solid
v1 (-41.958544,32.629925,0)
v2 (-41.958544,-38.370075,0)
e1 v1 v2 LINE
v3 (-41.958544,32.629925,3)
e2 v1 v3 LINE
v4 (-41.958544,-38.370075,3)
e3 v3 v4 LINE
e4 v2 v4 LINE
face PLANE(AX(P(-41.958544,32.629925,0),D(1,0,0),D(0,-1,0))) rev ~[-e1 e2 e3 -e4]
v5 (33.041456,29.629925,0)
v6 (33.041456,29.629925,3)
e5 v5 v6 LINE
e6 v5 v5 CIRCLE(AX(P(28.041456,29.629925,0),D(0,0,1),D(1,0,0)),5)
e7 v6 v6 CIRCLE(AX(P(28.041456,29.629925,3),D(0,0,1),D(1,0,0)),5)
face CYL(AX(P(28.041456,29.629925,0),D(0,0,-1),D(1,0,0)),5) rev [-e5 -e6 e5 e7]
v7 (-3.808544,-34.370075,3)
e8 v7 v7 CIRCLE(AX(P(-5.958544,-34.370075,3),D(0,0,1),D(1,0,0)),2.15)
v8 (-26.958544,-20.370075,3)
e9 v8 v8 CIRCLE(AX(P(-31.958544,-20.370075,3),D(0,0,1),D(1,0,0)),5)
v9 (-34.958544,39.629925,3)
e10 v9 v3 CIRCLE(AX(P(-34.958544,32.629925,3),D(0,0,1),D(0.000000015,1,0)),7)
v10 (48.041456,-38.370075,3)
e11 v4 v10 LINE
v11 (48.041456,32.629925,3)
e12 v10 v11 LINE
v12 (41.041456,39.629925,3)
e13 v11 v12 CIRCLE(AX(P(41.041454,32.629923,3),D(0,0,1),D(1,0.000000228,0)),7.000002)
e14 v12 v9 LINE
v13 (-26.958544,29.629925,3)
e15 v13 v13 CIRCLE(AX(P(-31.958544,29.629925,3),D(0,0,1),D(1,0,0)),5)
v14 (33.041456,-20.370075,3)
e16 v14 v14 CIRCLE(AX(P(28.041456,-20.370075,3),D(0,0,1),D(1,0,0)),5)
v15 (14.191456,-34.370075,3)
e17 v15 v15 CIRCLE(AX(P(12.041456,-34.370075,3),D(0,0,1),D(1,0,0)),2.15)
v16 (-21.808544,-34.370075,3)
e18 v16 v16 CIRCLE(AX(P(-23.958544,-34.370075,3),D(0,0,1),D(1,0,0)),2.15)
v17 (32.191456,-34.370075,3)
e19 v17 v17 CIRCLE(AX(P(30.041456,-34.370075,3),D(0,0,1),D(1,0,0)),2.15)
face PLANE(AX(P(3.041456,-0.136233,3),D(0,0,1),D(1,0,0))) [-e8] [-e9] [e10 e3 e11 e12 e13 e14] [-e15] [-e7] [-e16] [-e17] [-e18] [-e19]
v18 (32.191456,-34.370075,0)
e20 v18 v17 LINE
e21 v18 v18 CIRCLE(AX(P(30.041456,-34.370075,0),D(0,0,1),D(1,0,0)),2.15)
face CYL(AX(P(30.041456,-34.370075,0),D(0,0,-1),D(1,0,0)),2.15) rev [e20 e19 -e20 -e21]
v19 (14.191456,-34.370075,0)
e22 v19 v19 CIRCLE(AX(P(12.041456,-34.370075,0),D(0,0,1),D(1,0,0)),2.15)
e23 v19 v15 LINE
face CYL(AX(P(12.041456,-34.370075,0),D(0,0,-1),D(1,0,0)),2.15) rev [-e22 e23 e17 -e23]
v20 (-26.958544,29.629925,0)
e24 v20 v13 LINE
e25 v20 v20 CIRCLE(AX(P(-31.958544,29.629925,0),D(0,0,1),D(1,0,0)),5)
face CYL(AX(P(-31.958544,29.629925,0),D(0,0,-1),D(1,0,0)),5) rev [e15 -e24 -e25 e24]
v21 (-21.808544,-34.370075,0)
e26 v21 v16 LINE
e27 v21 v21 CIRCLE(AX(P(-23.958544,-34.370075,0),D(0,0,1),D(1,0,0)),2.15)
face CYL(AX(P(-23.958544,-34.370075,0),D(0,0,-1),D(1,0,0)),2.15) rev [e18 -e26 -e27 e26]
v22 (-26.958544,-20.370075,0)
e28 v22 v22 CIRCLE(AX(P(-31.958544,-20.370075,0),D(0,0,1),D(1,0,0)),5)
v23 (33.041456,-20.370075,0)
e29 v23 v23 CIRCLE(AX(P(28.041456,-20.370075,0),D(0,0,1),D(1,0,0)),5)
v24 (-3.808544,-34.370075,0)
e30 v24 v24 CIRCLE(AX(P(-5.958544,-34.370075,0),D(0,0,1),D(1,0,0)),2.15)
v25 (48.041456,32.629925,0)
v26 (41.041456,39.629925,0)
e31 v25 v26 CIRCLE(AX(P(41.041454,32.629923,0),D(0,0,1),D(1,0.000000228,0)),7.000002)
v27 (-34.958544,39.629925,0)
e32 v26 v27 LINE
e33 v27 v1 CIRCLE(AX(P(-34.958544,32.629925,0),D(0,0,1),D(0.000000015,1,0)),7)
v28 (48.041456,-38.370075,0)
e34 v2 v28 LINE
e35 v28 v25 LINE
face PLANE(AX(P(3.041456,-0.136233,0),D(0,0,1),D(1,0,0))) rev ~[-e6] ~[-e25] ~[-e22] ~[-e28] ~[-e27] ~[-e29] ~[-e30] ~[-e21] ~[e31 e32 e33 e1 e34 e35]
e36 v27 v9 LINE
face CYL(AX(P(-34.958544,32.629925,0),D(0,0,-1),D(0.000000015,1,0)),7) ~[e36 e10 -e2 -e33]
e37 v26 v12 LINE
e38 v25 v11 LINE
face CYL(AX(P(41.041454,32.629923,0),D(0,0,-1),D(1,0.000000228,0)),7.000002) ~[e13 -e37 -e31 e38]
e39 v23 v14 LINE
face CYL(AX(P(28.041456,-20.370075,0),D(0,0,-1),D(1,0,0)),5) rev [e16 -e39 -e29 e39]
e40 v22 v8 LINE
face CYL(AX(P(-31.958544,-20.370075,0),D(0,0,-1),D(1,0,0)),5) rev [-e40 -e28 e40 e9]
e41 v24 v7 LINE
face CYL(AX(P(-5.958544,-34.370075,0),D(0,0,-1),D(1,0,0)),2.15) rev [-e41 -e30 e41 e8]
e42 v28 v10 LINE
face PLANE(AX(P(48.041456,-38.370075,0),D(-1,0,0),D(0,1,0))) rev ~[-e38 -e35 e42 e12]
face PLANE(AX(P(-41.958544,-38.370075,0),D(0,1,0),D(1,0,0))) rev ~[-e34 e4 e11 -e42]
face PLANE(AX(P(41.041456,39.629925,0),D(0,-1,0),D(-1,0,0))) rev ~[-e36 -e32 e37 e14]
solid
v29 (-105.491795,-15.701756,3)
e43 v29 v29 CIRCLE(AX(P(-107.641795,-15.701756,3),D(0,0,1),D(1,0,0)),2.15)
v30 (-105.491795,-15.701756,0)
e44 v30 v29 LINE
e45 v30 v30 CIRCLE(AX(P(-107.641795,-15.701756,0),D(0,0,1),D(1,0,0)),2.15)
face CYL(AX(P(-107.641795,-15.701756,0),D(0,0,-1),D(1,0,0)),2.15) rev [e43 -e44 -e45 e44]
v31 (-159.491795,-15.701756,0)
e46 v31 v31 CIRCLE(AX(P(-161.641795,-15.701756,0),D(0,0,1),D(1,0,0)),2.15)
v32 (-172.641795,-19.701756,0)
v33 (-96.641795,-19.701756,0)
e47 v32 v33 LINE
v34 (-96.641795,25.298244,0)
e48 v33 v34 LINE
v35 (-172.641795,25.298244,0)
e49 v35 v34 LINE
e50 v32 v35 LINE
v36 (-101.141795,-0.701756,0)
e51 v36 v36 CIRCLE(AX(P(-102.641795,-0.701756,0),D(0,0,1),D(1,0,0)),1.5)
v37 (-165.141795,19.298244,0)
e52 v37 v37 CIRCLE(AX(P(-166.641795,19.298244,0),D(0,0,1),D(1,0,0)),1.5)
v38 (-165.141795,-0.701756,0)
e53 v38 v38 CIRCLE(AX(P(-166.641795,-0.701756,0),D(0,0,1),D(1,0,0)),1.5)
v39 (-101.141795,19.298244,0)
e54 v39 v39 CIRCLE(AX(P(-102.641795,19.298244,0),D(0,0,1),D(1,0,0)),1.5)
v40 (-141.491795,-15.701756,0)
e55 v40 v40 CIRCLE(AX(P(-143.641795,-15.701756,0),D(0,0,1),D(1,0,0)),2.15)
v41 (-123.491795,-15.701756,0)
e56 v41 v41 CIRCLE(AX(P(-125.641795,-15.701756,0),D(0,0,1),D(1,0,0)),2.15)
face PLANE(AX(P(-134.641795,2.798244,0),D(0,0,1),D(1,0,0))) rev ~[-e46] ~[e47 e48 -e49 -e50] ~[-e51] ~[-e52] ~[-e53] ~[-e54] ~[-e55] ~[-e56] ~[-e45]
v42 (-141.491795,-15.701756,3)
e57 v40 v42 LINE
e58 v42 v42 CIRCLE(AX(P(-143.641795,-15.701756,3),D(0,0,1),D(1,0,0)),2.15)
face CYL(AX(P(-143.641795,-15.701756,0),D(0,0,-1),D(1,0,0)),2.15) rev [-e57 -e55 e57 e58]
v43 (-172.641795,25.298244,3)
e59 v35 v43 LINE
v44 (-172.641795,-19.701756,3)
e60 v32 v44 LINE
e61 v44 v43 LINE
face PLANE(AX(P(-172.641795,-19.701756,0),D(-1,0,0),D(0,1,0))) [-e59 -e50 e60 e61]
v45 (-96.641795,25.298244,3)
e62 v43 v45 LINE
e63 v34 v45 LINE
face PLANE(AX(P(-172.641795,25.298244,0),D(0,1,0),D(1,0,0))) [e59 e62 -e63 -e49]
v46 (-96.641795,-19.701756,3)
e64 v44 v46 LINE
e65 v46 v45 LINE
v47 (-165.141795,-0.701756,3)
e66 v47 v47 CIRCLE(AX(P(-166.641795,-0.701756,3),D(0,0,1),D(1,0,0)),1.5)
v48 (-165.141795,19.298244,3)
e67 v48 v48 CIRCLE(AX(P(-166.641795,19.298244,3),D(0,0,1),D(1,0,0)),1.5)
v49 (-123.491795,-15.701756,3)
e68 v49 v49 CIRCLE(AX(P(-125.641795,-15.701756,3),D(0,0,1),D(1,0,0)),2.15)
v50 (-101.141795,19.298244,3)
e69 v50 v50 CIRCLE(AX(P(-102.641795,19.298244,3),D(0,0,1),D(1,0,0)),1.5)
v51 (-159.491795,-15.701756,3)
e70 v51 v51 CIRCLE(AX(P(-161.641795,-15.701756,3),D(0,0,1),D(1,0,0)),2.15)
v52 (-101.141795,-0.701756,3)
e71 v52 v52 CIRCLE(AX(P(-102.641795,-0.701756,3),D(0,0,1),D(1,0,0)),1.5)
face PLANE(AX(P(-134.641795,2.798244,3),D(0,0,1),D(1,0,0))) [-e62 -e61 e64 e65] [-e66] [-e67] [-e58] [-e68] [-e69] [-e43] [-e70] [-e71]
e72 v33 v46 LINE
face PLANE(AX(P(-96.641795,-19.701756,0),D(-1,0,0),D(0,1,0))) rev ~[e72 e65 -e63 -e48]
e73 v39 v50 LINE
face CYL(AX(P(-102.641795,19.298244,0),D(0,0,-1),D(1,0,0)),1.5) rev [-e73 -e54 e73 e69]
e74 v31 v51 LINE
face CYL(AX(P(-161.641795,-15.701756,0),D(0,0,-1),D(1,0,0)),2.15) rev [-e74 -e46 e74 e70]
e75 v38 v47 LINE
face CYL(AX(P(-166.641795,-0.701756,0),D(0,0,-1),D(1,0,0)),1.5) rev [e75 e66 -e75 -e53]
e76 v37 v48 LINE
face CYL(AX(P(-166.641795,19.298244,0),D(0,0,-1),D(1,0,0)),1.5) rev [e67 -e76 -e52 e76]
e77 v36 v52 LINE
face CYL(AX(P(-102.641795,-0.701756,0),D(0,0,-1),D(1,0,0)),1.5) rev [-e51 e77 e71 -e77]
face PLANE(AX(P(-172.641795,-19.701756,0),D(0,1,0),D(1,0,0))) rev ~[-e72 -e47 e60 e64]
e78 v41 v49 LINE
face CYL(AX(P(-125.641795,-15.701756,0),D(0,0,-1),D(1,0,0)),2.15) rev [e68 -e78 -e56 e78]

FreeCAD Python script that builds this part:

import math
import FreeCAD as App
import Part
import Sketcher
from FreeCAD import Vector
Q = App.Units.Quantity

doc = App.newDocument("Part")
params = doc.addObject("Spreadsheet::Sheet", "Params")
for row, (alias, value) in enumerate([
    ("sketch1_diameter", "10 mm"),
    ("sketch1_radius", "7.000002 mm"),
    ("sketch1_diameter2", "4.3 mm"),
    ("sketch1_width", "76 mm"),
    ("sketch1_height", "71 mm"),
    ("pad1_length", "3 mm"),
    ("sketch2_diameter", "3 mm"),
    ("sketch2_diameter2", "4.3 mm"),
    ("sketch2_width", "76 mm"),
    ("sketch2_height", "45 mm"),
    ("pad2_length", "3 mm"),
], start=1):
    params.set(f"A{row}", alias)
    params.set(f"B{row}", "=" + value)
    params.setAlias(f"B{row}", alias)

body = doc.addObject("PartDesign::Body", "Body")

# Sketch on XY plane
sketch1 = body.newObject("Sketcher::SketchObject", "Sketch")
sketch1.AttachmentSupport = (doc.getObject("XY_Plane"), [""])
sketch1.MapMode = "FlatFace"
sketch1.addGeometry(Part.LineSegment(Vector(48.041456, -38.370075, 0), Vector(48.041456, 32.629925, 0)), False)
sketch1.addGeometry(Part.ArcOfCircle(Part.Circle(Vector(41.041454, 32.629923, 0), Vector(0, 0, 1), 7.000002), math.radians(0.000013), math.radians(89.999987)), False)
sketch1.addGeometry(Part.LineSegment(Vector(41.041456, 39.629925, 0), Vector(-34.958544, 39.629925, 0)), False)
sketch1.addGeometry(Part.ArcOfCircle(Part.Circle(Vector(-34.958544, 32.629925, 0), Vector(0, 0, 1), 7), math.radians(89.999999), math.radians(180.000001)), False)
sketch1.addGeometry(Part.LineSegment(Vector(-41.958544, 32.629925, 0), Vector(-41.958544, -38.370075, 0)), False)
sketch1.addGeometry(Part.LineSegment(Vector(-41.958544, -38.370075, 0), Vector(48.041456, -38.370075, 0)), False)
sketch1.addGeometry(Part.Circle(Vector(-23.958544, -34.370075, 0), Vector(0, 0, 1), 2.15), False)
sketch1.addGeometry(Part.Circle(Vector(-31.958544, -20.370075, 0), Vector(0, 0, 1), 5), False)
sketch1.addGeometry(Part.Circle(Vector(-5.958544, -34.370075, 0), Vector(0, 0, 1), 2.15), False)
sketch1.addGeometry(Part.Circle(Vector(12.041456, -34.370075, 0), Vector(0, 0, 1), 2.15), False)
sketch1.addGeometry(Part.Circle(Vector(30.041456, -34.370075, 0), Vector(0, 0, 1), 2.15), False)
sketch1.addGeometry(Part.Circle(Vector(28.041456, -20.370075, 0), Vector(0, 0, 1), 5), False)
sketch1.addGeometry(Part.Circle(Vector(-31.958544, 29.629925, 0), Vector(0, 0, 1), 5), False)
sketch1.addGeometry(Part.Circle(Vector(28.041456, 29.629925, 0), Vector(0, 0, 1), 5), False)
sketch1.addConstraint(Sketcher.Constraint("Tangent", 0, 2, 1, 1))
sketch1.addConstraint(Sketcher.Constraint("Tangent", 1, 2, 2, 1))
sketch1.addConstraint(Sketcher.Constraint("Tangent", 2, 2, 3, 1))
sketch1.addConstraint(Sketcher.Constraint("Tangent", 3, 2, 4, 1))
sketch1.addConstraint(Sketcher.Constraint("Coincident", 4, 2, 5, 1))
sketch1.addConstraint(Sketcher.Constraint("Coincident", 5, 2, 0, 1))
sketch1.addConstraint(Sketcher.Constraint("Vertical", 0))
sketch1.addConstraint(Sketcher.Constraint("Horizontal", 2))
sketch1.addConstraint(Sketcher.Constraint("Vertical", 4))
sketch1.addConstraint(Sketcher.Constraint("Horizontal", 5))
sketch1.addConstraint(Sketcher.Constraint("Equal", 1, 3))
sketch1.addConstraint(Sketcher.Constraint("Equal", 6, 8))
sketch1.addConstraint(Sketcher.Constraint("Equal", 8, 9))
sketch1.addConstraint(Sketcher.Constraint("Equal", 9, 10))
sketch1.addConstraint(Sketcher.Constraint("Equal", 7, 11))
sketch1.addConstraint(Sketcher.Constraint("Equal", 11, 12))
sketch1.addConstraint(Sketcher.Constraint("Equal", 12, 13))
sketch1.addConstraint(Sketcher.Constraint("Horizontal", 6, 3, 8, 3))
sketch1.addConstraint(Sketcher.Constraint("Horizontal", 8, 3, 9, 3))
sketch1.addConstraint(Sketcher.Constraint("Horizontal", 9, 3, 10, 3))
sketch1.addConstraint(Sketcher.Constraint("Horizontal", 7, 3, 11, 3))
sketch1.addConstraint(Sketcher.Constraint("Horizontal", 12, 3, 13, 3))
sketch1.addConstraint(Sketcher.Constraint("Vertical", 7, 3, 12, 3))
sketch1.addConstraint(Sketcher.Constraint("Vertical", 11, 3, 13, 3))
sketch1.addConstraint(Sketcher.Constraint("Diameter", 7, Q("10 mm")))
sketch1.addConstraint(Sketcher.Constraint("Radius", 1, Q("7.000002 mm")))
sketch1.addConstraint(Sketcher.Constraint("Diameter", 6, Q("4.3 mm")))
sketch1.addConstraint(Sketcher.Constraint("DistanceX", 2, 2, 2, 1, Q("76 mm")))
sketch1.addConstraint(Sketcher.Constraint("DistanceY", 0, 1, 0, 2, Q("71 mm")))
sketch1.addConstraint(Sketcher.Constraint("DistanceX", 3, 3, 6, 3, Q("11 mm")))
sketch1.addConstraint(Sketcher.Constraint("DistanceY", 6, 3, 3, 3, Q("67 mm")))
sketch1.addConstraint(Sketcher.Constraint("DistanceX", 7, 3, 6, 3, Q("8 mm")))
sketch1.addConstraint(Sketcher.Constraint("DistanceY", 6, 3, 7, 3, Q("14 mm")))
sketch1.addConstraint(Sketcher.Constraint("DistanceX", 6, 3, 8, 3, Q("18 mm")))
sketch1.addConstraint(Sketcher.Constraint("DistanceX", 8, 3, 9, 3, Q("18 mm")))
sketch1.addConstraint(Sketcher.Constraint("DistanceX", 9, 3, 10, 3, Q("18 mm")))
sketch1.addConstraint(Sketcher.Constraint("DistanceX", 11, 3, 10, 3, Q("2 mm")))
sketch1.addConstraint(Sketcher.Constraint("DistanceY", 12, 3, 3, 3, Q("3 mm")))
sketch1.addConstraint(Sketcher.Constraint("DistanceX", -1, 1, 1, 3, Q("41.041454 mm")))
sketch1.addConstraint(Sketcher.Constraint("DistanceY", -1, 1, 1, 3, Q("32.629923 mm")))
sketch1.setExpression("Constraints[24]", "Params.sketch1_diameter")
sketch1.setExpression("Constraints[25]", "Params.sketch1_radius")
sketch1.setExpression("Constraints[26]", "Params.sketch1_diameter2")
sketch1.setExpression("Constraints[27]", "Params.sketch1_width")
sketch1.setExpression("Constraints[28]", "Params.sketch1_height")
pad1 = body.newObject("PartDesign::Pad", "Pad")
pad1.Profile = sketch1
pad1.setExpression("Length", "Params.pad1_length")
body2 = doc.addObject("PartDesign::Body", "Body001")

# Sketch on XY plane
sketch2 = body2.newObject("Sketcher::SketchObject", "Sketch001")
sketch2.AttachmentSupport = (doc.getObject("XY_Plane001"), [""])
sketch2.MapMode = "FlatFace"
sketch2.addGeometry(Part.LineSegment(Vector(-172.641795, 25.298244, 0), Vector(-172.641795, -19.701756, 0)), False)
sketch2.addGeometry(Part.LineSegment(Vector(-172.641795, -19.701756, 0), Vector(-96.641795, -19.701756, 0)), False)
sketch2.addGeometry(Part.LineSegment(Vector(-96.641795, -19.701756, 0), Vector(-96.641795, 25.298244, 0)), False)
sketch2.addGeometry(Part.LineSegment(Vector(-96.641795, 25.298244, 0), Vector(-172.641795, 25.298244, 0)), False)
sketch2.addGeometry(Part.Circle(Vector(-161.641795, -15.701756, 0), Vector(0, 0, 1), 2.15), False)
sketch2.addGeometry(Part.Circle(Vector(-143.641795, -15.701756, 0), Vector(0, 0, 1), 2.15), False)
sketch2.addGeometry(Part.Circle(Vector(-166.641795, -0.701756, 0), Vector(0, 0, 1), 1.5), False)
sketch2.addGeometry(Part.Circle(Vector(-125.641795, -15.701756, 0), Vector(0, 0, 1), 2.15), False)
sketch2.addGeometry(Part.Circle(Vector(-107.641795, -15.701756, 0), Vector(0, 0, 1), 2.15), False)
sketch2.addGeometry(Part.Circle(Vector(-102.641795, -0.701756, 0), Vector(0, 0, 1), 1.5), False)
sketch2.addGeometry(Part.Circle(Vector(-166.641795, 19.298244, 0), Vector(0, 0, 1), 1.5), False)
sketch2.addGeometry(Part.Circle(Vector(-102.641795, 19.298244, 0), Vector(0, 0, 1), 1.5), False)
sketch2.addConstraint(Sketcher.Constraint("Coincident", 0, 2, 1, 1))
sketch2.addConstraint(Sketcher.Constraint("Coincident", 1, 2, 2, 1))
sketch2.addConstraint(Sketcher.Constraint("Coincident", 2, 2, 3, 1))
sketch2.addConstraint(Sketcher.Constraint("Coincident", 3, 2, 0, 1))
sketch2.addConstraint(Sketcher.Constraint("Vertical", 0))
sketch2.addConstraint(Sketcher.Constraint("Horizontal", 1))
sketch2.addConstraint(Sketcher.Constraint("Vertical", 2))
sketch2.addConstraint(Sketcher.Constraint("Horizontal", 3))
sketch2.addConstraint(Sketcher.Constraint("Equal", 4, 5))
sketch2.addConstraint(Sketcher.Constraint("Equal", 5, 7))
sketch2.addConstraint(Sketcher.Constraint("Equal", 7, 8))
sketch2.addConstraint(Sketcher.Constraint("Equal", 6, 9))
sketch2.addConstraint(Sketcher.Constraint("Equal", 9, 10))
sketch2.addConstraint(Sketcher.Constraint("Equal", 10, 11))
sketch2.addConstraint(Sketcher.Constraint("Horizontal", 4, 3, 5, 3))
sketch2.addConstraint(Sketcher.Constraint("Horizontal", 5, 3, 7, 3))
sketch2.addConstraint(Sketcher.Constraint("Horizontal", 7, 3, 8, 3))
sketch2.addConstraint(Sketcher.Constraint("Horizontal", 6, 3, 9, 3))
sketch2.addConstraint(Sketcher.Constraint("Horizontal", 10, 3, 11, 3))
sketch2.addConstraint(Sketcher.Constraint("Vertical", 6, 3, 10, 3))
sketch2.addConstraint(Sketcher.Constraint("Vertical", 9, 3, 11, 3))
sketch2.addConstraint(Sketcher.Constraint("Diameter", 6, Q("3 mm")))
sketch2.addConstraint(Sketcher.Constraint("Diameter", 4, Q("4.3 mm")))
sketch2.addConstraint(Sketcher.Constraint("DistanceX", 1, 1, 1, 2, Q("76 mm")))
sketch2.addConstraint(Sketcher.Constraint("DistanceY", 0, 2, 0, 1, Q("45 mm")))
sketch2.addConstraint(Sketcher.Constraint("DistanceX", 4, 3, 5, 3, Q("18 mm")))
sketch2.addConstraint(Sketcher.Constraint("DistanceX", 6, 3, 4, 3, Q("5 mm")))
sketch2.addConstraint(Sketcher.Constraint("DistanceY", 4, 3, 6, 3, Q("15 mm")))
sketch2.addConstraint(Sketcher.Constraint("DistanceX", 5, 3, 7, 3, Q("18 mm")))
sketch2.addConstraint(Sketcher.Constraint("DistanceX", 7, 3, 8, 3, Q("18 mm")))
sketch2.addConstraint(Sketcher.Constraint("DistanceX", 8, 3, 9, 3, Q("5 mm")))
sketch2.addConstraint(Sketcher.Constraint("DistanceY", 6, 3, 10, 3, Q("20 mm")))
sketch2.addConstraint(Sketcher.Constraint("DistanceX", 0, 2, 4, 3, Q("11 mm")))
sketch2.addConstraint(Sketcher.Constraint("DistanceY", 0, 2, 4, 3, Q("4 mm")))
sketch2.addConstraint(Sketcher.Constraint("DistanceX", 4, 3, -1, 1, Q("161.641795 mm")))
sketch2.addConstraint(Sketcher.Constraint("DistanceY", 4, 3, -1, 1, Q("15.701756 mm")))
sketch2.setExpression("Constraints[21]", "Params.sketch2_diameter")
sketch2.setExpression("Constraints[22]", "Params.sketch2_diameter2")
sketch2.setExpression("Constraints[23]", "Params.sketch2_width")
sketch2.setExpression("Constraints[24]", "Params.sketch2_height")
pad2 = body2.newObject("PartDesign::Pad", "Pad001")
pad2.Profile = sketch2
pad2.setExpression("Length", "Params.pad2_length")

doc.recompute()
